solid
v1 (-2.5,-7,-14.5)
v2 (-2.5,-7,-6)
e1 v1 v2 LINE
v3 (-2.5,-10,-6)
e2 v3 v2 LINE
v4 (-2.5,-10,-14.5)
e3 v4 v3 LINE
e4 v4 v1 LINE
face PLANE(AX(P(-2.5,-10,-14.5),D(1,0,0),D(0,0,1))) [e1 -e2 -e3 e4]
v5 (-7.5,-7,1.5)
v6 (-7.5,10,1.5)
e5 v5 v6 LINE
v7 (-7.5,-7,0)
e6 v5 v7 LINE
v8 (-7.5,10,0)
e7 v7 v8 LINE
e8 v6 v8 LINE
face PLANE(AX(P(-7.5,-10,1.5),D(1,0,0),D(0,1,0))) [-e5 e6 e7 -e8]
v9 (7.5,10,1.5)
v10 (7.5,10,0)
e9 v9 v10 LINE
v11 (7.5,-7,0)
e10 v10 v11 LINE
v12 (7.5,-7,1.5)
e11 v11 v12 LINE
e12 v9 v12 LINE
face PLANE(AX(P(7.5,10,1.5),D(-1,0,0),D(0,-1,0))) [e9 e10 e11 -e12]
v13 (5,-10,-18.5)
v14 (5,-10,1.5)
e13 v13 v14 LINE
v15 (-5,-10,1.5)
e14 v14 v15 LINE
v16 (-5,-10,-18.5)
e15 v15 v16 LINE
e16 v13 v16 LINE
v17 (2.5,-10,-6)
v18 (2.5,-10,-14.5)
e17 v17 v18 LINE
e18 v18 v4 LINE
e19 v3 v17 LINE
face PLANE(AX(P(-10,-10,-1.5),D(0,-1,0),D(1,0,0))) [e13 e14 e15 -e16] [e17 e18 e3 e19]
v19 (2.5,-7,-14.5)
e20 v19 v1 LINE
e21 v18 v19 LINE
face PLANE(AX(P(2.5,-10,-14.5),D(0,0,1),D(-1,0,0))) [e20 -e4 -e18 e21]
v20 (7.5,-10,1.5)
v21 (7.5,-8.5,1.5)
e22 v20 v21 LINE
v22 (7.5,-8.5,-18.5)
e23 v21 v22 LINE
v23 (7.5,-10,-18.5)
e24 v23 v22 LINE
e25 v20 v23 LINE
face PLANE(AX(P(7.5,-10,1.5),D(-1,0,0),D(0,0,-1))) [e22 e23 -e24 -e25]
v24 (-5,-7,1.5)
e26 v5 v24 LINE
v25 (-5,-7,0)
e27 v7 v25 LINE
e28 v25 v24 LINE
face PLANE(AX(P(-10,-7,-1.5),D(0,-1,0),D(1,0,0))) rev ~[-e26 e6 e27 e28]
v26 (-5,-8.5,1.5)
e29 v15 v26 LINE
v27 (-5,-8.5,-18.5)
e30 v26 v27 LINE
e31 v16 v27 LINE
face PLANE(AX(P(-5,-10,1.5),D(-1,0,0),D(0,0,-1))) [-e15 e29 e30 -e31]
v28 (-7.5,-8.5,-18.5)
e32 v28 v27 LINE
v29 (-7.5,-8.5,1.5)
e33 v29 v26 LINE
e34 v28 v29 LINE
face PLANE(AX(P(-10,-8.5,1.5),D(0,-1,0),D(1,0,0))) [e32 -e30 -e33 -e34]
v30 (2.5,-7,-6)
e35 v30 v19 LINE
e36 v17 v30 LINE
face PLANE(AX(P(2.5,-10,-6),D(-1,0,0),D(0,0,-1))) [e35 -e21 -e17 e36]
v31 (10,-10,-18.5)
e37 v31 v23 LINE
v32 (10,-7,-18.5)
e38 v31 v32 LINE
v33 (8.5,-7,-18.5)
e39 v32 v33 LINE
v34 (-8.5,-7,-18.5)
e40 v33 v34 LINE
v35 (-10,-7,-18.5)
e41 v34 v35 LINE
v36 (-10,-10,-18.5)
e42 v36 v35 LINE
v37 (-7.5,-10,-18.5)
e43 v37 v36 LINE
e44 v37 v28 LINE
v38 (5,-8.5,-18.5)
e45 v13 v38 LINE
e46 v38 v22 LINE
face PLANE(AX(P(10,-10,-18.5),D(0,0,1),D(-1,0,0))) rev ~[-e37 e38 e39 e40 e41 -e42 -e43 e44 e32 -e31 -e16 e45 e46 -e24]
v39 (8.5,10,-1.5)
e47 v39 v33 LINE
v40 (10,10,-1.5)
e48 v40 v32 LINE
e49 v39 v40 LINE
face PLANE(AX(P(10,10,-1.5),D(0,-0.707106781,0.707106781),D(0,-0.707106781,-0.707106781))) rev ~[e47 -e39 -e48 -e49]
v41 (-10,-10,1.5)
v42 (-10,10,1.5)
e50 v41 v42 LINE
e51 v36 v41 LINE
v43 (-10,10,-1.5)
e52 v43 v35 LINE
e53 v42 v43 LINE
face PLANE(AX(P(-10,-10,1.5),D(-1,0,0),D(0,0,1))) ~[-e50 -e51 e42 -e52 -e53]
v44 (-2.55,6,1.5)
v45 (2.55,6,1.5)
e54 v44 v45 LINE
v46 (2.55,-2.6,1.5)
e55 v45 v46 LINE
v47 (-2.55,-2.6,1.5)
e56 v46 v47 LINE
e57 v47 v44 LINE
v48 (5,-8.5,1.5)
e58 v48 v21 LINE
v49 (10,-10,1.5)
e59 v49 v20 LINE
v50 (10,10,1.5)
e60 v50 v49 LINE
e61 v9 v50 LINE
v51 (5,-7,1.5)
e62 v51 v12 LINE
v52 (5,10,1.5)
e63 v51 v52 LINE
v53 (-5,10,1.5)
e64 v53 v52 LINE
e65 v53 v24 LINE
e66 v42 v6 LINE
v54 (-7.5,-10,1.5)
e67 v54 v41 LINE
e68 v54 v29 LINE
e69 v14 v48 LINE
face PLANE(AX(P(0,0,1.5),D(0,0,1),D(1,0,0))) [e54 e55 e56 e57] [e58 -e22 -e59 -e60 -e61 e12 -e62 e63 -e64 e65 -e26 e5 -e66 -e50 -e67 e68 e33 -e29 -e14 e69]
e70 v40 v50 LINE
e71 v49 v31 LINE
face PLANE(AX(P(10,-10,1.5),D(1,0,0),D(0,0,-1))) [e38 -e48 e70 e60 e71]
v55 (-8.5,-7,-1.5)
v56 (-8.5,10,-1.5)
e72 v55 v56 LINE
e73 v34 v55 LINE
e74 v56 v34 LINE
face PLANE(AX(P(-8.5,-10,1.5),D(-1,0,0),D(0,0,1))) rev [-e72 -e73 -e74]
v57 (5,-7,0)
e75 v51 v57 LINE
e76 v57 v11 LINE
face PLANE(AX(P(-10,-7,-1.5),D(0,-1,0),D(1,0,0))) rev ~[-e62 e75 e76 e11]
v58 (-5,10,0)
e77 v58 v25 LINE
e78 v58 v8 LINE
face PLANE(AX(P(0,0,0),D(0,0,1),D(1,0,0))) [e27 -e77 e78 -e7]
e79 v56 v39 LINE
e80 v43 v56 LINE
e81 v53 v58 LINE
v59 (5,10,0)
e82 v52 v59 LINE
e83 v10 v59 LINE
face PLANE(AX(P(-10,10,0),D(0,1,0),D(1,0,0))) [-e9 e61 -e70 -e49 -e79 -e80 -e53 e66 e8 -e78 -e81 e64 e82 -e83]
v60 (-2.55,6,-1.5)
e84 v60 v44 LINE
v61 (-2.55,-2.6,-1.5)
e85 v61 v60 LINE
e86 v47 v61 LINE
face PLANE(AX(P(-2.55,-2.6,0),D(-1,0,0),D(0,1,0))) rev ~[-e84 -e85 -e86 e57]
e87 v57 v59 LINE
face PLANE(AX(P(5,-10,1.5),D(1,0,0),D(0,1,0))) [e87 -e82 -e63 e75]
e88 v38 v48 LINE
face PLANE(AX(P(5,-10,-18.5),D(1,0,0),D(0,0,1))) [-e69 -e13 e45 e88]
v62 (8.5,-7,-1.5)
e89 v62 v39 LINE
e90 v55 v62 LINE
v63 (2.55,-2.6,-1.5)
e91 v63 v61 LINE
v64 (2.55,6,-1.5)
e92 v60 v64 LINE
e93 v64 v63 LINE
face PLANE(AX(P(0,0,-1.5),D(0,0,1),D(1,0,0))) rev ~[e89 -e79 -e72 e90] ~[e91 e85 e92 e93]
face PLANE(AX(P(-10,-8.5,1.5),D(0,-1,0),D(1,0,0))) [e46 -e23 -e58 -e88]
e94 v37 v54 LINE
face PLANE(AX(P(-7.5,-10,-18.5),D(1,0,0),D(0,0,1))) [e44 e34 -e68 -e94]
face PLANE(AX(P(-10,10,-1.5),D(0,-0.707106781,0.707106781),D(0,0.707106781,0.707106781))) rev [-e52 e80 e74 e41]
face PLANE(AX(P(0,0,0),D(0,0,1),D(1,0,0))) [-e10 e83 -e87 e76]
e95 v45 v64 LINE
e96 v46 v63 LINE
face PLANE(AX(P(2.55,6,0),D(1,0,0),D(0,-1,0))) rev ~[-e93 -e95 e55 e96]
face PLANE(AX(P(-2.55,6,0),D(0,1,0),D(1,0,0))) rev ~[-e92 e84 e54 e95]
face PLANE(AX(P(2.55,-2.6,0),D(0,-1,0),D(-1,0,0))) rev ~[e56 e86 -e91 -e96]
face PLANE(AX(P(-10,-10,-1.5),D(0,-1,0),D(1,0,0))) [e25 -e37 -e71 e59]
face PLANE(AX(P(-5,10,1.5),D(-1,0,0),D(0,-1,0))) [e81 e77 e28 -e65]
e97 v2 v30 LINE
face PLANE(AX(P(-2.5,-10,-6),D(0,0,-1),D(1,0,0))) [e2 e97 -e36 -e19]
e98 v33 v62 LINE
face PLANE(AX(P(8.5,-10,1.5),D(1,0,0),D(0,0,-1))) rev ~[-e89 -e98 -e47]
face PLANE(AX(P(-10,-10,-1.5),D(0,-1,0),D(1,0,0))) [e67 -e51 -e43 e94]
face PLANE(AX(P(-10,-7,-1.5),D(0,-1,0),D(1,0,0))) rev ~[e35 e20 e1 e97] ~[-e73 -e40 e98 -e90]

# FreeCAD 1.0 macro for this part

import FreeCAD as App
import Part
import Sketcher


def add_polygon(sketch, points):
    """Adds a closed chain of lines whose ends are joined by coincident constraints."""
    first, n = sketch.GeometryCount, len(points)
    for a, b in zip(points, points[1:] + points[:1]):
        sketch.addGeometry(Part.LineSegment(App.Vector(*a, 0), App.Vector(*b, 0)), False)
    for i in range(n):
        sketch.addConstraint(Sketcher.Constraint("Coincident", first + i, 2, first + (i + 1) % n, 1))

doc = App.newDocument("Part")
params = doc.addObject("Spreadsheet::Sheet", "Params")
for row, (alias, value) in enumerate([
    ("sketch1_width", "20 mm"),
    ("sketch1_width2", "5.1 mm"),
    ("sketch1_height", "8.6 mm"),
    ("pad1_length", "3 mm"),
    ("sketch2_width", "2.5 mm"),
    ("sketch2_height", "20 mm"),
    ("pocket1_length", "1.5 mm"),
    ("sketch3_width", "20 mm"),
    ("sketch3_width2", "5 mm"),
    ("sketch3_height", "8.5 mm"),
    ("pad2_length", "3 mm"),
    ("sketch4_width", "2.5 mm"),
    ("sketch4_height", "20 mm"),
    ("pocket2_length", "1.5 mm"),
    ("sketch5_width", "17 mm"),
    ("pad3_length", "1.5 mm"),
], start=1):
    params.set(f"A{row}", alias)
    params.set(f"B{row}", "=" + value)
    params.setAlias(f"B{row}", alias)

body = doc.addObject("PartDesign::Body", "Body")

sketch1 = doc.addObject("Sketcher::SketchObject", "Sketch")
body.addObject(sketch1)
sketch1.AttachmentSupport = (doc.XY_Plane, [""])
sketch1.MapMode = "FlatFace"
add_polygon(sketch1, [(-10, -10), (10, -10), (10, 10), (-10, 10)])
add_polygon(sketch1, [(-3, -3), (-3, 6), (3, 6), (3, -3)])
sketch1.addConstraint(Sketcher.Constraint("Horizontal", 0))
sketch1.addConstraint(Sketcher.Constraint("Vertical", 1))
sketch1.addConstraint(Sketcher.Constraint("Horizontal", 2))
sketch1.addConstraint(Sketcher.Constraint("Vertical", 3))
sketch1.addConstraint(Sketcher.Constraint("Vertical", 4))
sketch1.addConstraint(Sketcher.Constraint("Horizontal", 5))
sketch1.addConstraint(Sketcher.Constraint("Vertical", 6))
sketch1.addConstraint(Sketcher.Constraint("Horizontal", 7))
sketch1.addConstraint(Sketcher.Constraint("Symmetric", 0, 2, 2, 2, -1, 1))
sketch1.addConstraint(Sketcher.Constraint("Equal", 2, 1))
sketch1.addConstraint(Sketcher.Constraint("DistanceX", 0, 1, 0, 2, 20.0))
sketch1.addConstraint(Sketcher.Constraint("DistanceX", 5, 1, 5, 2, 5.1))
sketch1.addConstraint(Sketcher.Constraint("DistanceY", 4, 1, 4, 2, 8.6))
sketch1.addConstraint(Sketcher.Constraint("DistanceY", 4, 2, 2, 2, 4.0))
sketch1.addConstraint(Sketcher.Constraint("DistanceX", 4, 2, -1, 1, 2.55))
sketch1.setExpression("Constraints[18]", "Params.sketch1_width")
sketch1.setExpression("Constraints[19]", "Params.sketch1_width2")
sketch1.setExpression("Constraints[20]", "Params.sketch1_height")
pad1 = doc.addObject("PartDesign::Pad", "Pad")
body.addObject(pad1)
pad1.Profile = sketch1
pad1.setExpression("Length", "Params.pad1_length")
pad1.Midplane = True

sketch2 = doc.addObject("Sketcher::SketchObject", "Sketch001")
body.addObject(sketch2)
sketch2.AttachmentSupport = (doc.XY_Plane, [""])
sketch2.MapMode = "FlatFace"
sketch2.AttachmentOffset = App.Placement(App.Vector(0, 0, 1.5), App.Rotation())
add_polygon(sketch2, [(7.5, -10), (7.5, 10), (5, 10), (5, -10)])
add_polygon(sketch2, [(-5, -10), (-5, 10), (-7.5, 10), (-7.5, -10)])
sketch2.addConstraint(Sketcher.Constraint("Vertical", 0))
sketch2.addConstraint(Sketcher.Constraint("Horizontal", 1))
sketch2.addConstraint(Sketcher.Constraint("Vertical", 2))
sketch2.addConstraint(Sketcher.Constraint("Horizontal", 3))
sketch2.addConstraint(Sketcher.Constraint("Vertical", 4))
sketch2.addConstraint(Sketcher.Constraint("Horizontal", 5))
sketch2.addConstraint(Sketcher.Constraint("Vertical", 6))
sketch2.addConstraint(Sketcher.Constraint("Horizontal", 7))
sketch2.addConstraint(Sketcher.Constraint("Symmetric", 2, 2, 4, 2, -1, 1))
sketch2.addConstraint(Sketcher.Constraint("Symmetric", 0, 2, 6, 2, -1, 1))
sketch2.addConstraint(Sketcher.Constraint("Horizontal", 1, 2, 4, 2))
sketch2.addConstraint(Sketcher.Constraint("DistanceX", 1, 2, 1, 1, 2.5))
sketch2.addConstraint(Sketcher.Constraint("DistanceX", -1, 1, 1, 2, 5.0))
sketch2.addConstraint(Sketcher.Constraint("DistanceY", 0, 1, 0, 2, 20.0))
sketch2.setExpression("Constraints[19]", "Params.sketch2_width")
sketch2.setExpression("Constraints[21]", "Params.sketch2_height")
pocket1 = doc.addObject("PartDesign::Pocket", "Pocket")
body.addObject(pocket1)
pocket1.Profile = sketch2
pocket1.setExpression("Length", "Params.pocket1_length")

sketch3 = doc.addObject("Sketcher::SketchObject", "Sketch002")
body.addObject(sketch3)
sketch3.AttachmentSupport = (doc.XZ_Plane, [""])
sketch3.MapMode = "FlatFace"
sketch3.AttachmentOffset = App.Placement(App.Vector(0, 0, 10), App.Rotation())
add_polygon(sketch3, [(-10, -18), (10, -18), (10, 2), (-10, 2)])
add_polygon(sketch3, [(-2, -14), (-2, -6), (2, -6), (2, -14)])
sketch3.addConstraint(Sketcher.Constraint("Horizontal", 0))
sketch3.addConstraint(Sketcher.Constraint("Vertical", 1))
sketch3.addConstraint(Sketcher.Constraint("Horizontal", 2))
sketch3.addConstraint(Sketcher.Constraint("Vertical", 3))
sketch3.addConstraint(Sketcher.Constraint("Vertical", 4))
sketch3.addConstraint(Sketcher.Constraint("Horizontal", 5))
sketch3.addConstraint(Sketcher.Constraint("Vertical", 6))
sketch3.addConstraint(Sketcher.Constraint("Horizontal", 7))
sketch3.addConstraint(Sketcher.Constraint("Equal", 2, 1))
sketch3.addConstraint(Sketcher.Constraint("DistanceX", 0, 1, 0, 2, 20.0))
sketch3.addConstraint(Sketcher.Constraint("DistanceX", 5, 1, 5, 2, 5.0))
sketch3.addConstraint(Sketcher.Constraint("DistanceY", 4, 1, 4, 2, 8.5))
sketch3.addConstraint(Sketcher.Constraint("DistanceY", 0, 2, 6, 2, 4.0))
sketch3.addConstraint(Sketcher.Constraint("DistanceX", -1, 1, 0, 2, 10.0))
sketch3.addConstraint(Sketcher.Constraint("DistanceY", 4, 2, -1, 1, 6.0))
sketch3.addConstraint(Sketcher.Constraint("DistanceX", 4, 2, -1, 1, 2.5))
sketch3.setExpression("Constraints[17]", "Params.sketch3_width")
sketch3.setExpression("Constraints[18]", "Params.sketch3_width2")
sketch3.setExpression("Constraints[19]", "Params.sketch3_height")
pad2 = doc.addObject("PartDesign::Pad", "Pad001")
body.addObject(pad2)
pad2.Profile = sketch3
pad2.setExpression("Length", "Params.pad2_length")
pad2.Reversed = True

sketch4 = doc.addObject("Sketcher::SketchObject", "Sketch003")
body.addObject(sketch4)
sketch4.AttachmentSupport = (doc.XZ_Plane, [""])
sketch4.MapMode = "FlatFace"
sketch4.AttachmentOffset = App.Placement(App.Vector(0, 0, 10), App.Rotation())
add_polygon(sketch4, [(-7.5, 1.5), (-7.5, -18.5), (-5, -18.5), (-5, 1.5)])
add_polygon(sketch4, [(5, 1.5), (5, -18.5), (7.5, -18.5), (7.5, 1.5)])
sketch4.addConstraint(Sketcher.Constraint("Vertical", 0))
sketch4.addConstraint(Sketcher.Constraint("Horizontal", 1))
sketch4.addConstraint(Sketcher.Constraint("Vertical", 2))
sketch4.addConstraint(Sketcher.Constraint("Horizontal", 3))
sketch4.addConstraint(Sketcher.Constraint("Vertical", 4))
sketch4.addConstraint(Sketcher.Constraint("Horizontal", 5))
sketch4.addConstraint(Sketcher.Constraint("Vertical", 6))
sketch4.addConstraint(Sketcher.Constraint("Horizontal", 7))
sketch4.addConstraint(Sketcher.Constraint("Symmetric", 1, 2, 4, 2, -2))
sketch4.addConstraint(Sketcher.Constraint("Symmetric", 3, 2, 6, 2, -2))
sketch4.addConstraint(Sketcher.Constraint("DistanceX", 1, 1, 1, 2, 2.5))
sketch4.addConstraint(Sketcher.Constraint("DistanceX", 1, 2, -1, 1, 5.0))
sketch4.addConstraint(Sketcher.Constraint("DistanceY", 0, 2, 0, 1, 20.0))
sketch4.addConstraint(Sketcher.Constraint("DistanceY", 0, 2, -1, 1, 18.5))
sketch4.setExpression("Constraints[18]", "Params.sketch4_width")
sketch4.setExpression("Constraints[20]", "Params.sketch4_height")
pocket2 = doc.addObject("PartDesign::Pocket", "Pocket001")
body.addObject(pocket2)
pocket2.Profile = sketch4
pocket2.setExpression("Length", "Params.pocket2_length")

sketch5 = doc.addObject("Sketcher::SketchObject", "Sketch004")
body.addObject(sketch5)
sketch5.AttachmentSupport = (doc.YZ_Plane, [""])
sketch5.MapMode = "FlatFace"
sketch5.AttachmentOffset = App.Placement(App.Vector(0, 0, 10), App.Rotation())
add_polygon(sketch5, [(-7, -18), (10, -2), (-7, -2)])
sketch5.addConstraint(Sketcher.Constraint("Horizontal", 1))
sketch5.addConstraint(Sketcher.Constraint("Vertical", 2))
sketch5.addConstraint(Sketcher.Constraint("Equal", 1, 2))
sketch5.addConstraint(Sketcher.Constraint("DistanceX", 1, 2, 1, 1, 17.0))
sketch5.addConstraint(Sketcher.Constraint("DistanceX", -1, 1, 0, 2, 10.0))
sketch5.addConstraint(Sketcher.Constraint("DistanceY", 0, 2, -1, 1, 1.5))
sketch5.setExpression("Constraints[6]", "Params.sketch5_width")
pad3 = doc.addObject("PartDesign::Pad", "Pad002")
body.addObject(pad3)
pad3.Profile = sketch5
pad3.setExpression("Length", "Params.pad3_length")
pad3.Reversed = True
doc.recompute()

mirrored = doc.addObject("PartDesign::Mirrored", "Mirrored")
body.addObject(mirrored)
mirrored.Originals = [pad3]
mirrored.MirrorPlane = (doc.YZ_Plane, [""])
body.Tip = mirrored

doc.recompute()
